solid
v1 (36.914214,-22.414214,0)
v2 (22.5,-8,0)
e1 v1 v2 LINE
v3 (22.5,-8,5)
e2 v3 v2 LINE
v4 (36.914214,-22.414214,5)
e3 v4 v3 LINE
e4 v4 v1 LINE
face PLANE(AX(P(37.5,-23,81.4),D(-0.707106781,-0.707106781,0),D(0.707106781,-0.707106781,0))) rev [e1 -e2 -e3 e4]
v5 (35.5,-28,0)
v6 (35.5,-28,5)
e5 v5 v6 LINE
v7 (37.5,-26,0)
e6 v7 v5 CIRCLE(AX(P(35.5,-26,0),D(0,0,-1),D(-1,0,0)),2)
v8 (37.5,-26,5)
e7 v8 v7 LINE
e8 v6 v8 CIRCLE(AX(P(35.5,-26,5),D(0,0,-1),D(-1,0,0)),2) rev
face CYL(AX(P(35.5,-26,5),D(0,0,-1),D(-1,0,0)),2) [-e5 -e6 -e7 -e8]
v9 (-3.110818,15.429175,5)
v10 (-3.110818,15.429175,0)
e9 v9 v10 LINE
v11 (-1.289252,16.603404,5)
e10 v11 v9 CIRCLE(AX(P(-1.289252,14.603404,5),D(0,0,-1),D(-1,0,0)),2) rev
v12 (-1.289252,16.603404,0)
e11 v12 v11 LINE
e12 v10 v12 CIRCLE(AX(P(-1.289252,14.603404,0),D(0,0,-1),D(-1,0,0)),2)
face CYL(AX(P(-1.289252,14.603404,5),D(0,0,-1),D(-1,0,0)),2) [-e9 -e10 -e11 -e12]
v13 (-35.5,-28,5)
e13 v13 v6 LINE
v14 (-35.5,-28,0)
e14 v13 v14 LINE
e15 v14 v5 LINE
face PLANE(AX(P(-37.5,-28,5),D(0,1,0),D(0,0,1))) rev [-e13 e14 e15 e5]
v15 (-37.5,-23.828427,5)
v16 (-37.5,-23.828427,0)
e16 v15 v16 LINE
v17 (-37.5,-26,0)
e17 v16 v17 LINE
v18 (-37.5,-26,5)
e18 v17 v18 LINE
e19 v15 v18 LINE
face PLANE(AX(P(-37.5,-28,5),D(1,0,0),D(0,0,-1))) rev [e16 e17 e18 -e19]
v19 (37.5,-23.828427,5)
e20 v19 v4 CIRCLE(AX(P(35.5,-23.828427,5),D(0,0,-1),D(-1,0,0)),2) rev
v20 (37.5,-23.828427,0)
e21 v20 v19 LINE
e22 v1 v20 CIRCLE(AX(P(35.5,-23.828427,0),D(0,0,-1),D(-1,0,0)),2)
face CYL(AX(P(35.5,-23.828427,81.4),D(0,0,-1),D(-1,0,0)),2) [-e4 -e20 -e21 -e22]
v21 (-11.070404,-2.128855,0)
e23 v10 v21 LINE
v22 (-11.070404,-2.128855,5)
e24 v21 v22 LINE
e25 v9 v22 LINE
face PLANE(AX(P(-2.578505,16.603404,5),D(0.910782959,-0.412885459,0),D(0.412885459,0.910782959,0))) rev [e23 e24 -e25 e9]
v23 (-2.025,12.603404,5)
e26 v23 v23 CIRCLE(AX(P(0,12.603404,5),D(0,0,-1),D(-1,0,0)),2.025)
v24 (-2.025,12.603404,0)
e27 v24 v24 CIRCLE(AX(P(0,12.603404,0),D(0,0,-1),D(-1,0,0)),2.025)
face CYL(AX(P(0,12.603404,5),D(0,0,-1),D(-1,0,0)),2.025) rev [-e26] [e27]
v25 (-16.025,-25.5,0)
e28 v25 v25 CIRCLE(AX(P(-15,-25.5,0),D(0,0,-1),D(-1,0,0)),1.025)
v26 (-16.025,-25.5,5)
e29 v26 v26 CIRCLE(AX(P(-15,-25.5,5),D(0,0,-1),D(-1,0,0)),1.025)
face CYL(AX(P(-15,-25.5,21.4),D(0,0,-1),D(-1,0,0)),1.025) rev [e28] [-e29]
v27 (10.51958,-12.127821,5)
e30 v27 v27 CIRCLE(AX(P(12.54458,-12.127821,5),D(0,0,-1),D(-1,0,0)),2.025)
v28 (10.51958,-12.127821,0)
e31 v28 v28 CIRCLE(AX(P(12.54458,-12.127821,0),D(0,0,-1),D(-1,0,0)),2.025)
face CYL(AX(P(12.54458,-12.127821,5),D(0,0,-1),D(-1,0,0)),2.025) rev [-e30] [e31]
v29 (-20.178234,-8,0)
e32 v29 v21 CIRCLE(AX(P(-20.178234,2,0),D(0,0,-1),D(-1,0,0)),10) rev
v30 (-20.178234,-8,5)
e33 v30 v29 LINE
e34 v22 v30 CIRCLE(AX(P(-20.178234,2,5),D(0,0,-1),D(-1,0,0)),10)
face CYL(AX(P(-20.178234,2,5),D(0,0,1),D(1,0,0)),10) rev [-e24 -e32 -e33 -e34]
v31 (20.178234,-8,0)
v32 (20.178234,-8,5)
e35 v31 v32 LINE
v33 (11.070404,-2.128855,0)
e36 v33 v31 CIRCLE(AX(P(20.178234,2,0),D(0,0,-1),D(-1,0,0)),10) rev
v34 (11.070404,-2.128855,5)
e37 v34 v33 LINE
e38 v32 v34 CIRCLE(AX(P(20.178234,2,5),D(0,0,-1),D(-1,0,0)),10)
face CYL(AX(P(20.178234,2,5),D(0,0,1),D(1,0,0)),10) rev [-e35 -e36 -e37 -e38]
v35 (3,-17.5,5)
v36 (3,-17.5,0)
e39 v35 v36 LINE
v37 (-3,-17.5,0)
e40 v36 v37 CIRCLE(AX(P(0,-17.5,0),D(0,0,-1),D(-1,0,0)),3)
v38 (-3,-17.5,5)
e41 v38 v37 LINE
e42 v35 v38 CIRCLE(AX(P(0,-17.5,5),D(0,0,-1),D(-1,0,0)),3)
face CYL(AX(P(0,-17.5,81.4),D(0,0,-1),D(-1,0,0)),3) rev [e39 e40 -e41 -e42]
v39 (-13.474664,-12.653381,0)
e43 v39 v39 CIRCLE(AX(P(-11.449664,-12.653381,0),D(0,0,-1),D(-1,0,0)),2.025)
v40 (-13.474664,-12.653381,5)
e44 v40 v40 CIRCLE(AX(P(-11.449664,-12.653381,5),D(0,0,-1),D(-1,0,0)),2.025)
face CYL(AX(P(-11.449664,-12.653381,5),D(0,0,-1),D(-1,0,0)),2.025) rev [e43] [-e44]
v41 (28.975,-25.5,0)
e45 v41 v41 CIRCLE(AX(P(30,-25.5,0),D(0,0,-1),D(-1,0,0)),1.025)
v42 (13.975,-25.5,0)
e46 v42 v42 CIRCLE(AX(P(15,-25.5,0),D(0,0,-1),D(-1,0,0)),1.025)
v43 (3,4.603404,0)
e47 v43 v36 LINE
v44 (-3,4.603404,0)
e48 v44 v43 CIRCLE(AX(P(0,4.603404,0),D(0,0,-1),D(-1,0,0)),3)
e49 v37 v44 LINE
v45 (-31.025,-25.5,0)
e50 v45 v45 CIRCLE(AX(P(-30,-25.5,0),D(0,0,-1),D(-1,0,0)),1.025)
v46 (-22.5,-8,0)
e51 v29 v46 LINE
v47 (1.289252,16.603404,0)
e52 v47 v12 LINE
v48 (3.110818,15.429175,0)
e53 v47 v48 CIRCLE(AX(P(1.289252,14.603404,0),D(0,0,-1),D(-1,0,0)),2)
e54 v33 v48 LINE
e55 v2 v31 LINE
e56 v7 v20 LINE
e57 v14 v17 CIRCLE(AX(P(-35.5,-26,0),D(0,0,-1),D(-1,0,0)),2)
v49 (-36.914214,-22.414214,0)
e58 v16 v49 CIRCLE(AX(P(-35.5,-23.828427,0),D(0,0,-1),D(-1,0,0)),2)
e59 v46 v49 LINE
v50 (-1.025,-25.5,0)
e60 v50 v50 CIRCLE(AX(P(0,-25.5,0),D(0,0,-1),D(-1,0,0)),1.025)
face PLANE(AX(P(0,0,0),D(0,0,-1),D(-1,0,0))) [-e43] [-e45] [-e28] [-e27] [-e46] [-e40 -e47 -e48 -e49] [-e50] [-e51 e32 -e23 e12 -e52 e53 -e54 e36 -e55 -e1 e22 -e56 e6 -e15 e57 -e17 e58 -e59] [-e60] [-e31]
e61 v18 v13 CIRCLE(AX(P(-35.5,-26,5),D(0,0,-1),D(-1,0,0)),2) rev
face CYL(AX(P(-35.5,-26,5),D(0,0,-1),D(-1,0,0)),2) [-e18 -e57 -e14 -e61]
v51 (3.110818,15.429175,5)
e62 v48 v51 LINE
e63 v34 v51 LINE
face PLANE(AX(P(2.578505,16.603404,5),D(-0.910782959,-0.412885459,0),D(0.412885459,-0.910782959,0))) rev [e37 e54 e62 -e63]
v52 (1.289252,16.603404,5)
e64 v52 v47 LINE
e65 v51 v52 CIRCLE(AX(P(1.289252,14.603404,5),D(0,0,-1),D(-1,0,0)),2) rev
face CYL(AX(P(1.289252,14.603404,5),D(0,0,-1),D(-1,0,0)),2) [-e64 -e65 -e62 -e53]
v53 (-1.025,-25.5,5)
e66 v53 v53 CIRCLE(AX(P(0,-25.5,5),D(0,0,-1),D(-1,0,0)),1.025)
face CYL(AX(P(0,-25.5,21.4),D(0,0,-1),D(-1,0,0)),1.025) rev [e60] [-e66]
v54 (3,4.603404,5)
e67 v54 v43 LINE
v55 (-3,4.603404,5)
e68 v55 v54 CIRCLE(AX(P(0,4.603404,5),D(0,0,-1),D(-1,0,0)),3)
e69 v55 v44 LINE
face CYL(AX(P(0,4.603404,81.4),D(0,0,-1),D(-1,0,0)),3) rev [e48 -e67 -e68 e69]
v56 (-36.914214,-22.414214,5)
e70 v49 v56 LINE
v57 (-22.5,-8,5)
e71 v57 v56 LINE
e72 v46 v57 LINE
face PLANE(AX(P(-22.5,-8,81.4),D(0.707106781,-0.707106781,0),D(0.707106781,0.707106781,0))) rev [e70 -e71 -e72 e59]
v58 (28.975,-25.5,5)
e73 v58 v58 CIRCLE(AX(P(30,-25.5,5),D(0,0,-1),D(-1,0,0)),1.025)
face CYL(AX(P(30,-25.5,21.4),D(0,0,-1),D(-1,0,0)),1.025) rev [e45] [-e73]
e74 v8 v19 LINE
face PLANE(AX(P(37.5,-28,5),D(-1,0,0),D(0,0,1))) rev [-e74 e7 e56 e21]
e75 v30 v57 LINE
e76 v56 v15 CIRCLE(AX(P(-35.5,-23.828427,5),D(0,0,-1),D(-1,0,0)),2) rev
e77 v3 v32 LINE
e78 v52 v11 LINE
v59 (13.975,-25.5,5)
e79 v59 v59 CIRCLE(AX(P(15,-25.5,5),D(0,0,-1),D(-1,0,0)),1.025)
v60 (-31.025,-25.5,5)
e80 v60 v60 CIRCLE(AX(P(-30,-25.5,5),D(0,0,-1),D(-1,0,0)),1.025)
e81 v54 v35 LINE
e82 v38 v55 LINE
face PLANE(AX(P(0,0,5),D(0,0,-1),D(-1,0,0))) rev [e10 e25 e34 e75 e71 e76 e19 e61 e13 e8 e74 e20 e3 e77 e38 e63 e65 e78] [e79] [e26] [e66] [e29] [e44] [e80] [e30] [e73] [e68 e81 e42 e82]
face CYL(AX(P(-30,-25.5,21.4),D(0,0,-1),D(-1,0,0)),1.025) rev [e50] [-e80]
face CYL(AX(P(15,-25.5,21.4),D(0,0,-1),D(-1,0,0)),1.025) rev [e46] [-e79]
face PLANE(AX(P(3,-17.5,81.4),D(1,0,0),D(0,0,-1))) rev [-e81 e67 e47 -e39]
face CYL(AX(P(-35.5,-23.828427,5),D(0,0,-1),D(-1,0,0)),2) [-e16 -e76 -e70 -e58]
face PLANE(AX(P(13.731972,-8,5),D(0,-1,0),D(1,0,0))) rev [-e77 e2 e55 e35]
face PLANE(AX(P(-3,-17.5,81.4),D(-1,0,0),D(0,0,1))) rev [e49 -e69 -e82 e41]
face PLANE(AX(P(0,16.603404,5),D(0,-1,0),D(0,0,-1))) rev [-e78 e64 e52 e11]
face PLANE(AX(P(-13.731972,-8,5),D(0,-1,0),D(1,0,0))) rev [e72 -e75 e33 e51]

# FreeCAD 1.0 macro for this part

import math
import FreeCAD as App
import Part
import Sketcher
from FreeCAD import Vector


def edges_at(feature, points):
    """Names of the edges that pass closest to the given points."""
    edges = feature.Shape.Edges
    near = lambda p: min(range(len(edges)), key=lambda i: edges[i].distToShape(Part.Vertex(*p))[0])
    return sorted({f"Edge{near(p) + 1}" for p in points})

doc = App.newDocument("Part")
body = doc.addObject("PartDesign::Body", "Body")

# Sketch on XY plane
sketch1 = body.newObject("Sketcher::SketchObject", "Sketch")
sketch1.AttachmentSupport = (doc.getObject("XY_Plane"), [""])
sketch1.MapMode = "FlatFace"
sketch1.addGeometry(Part.LineSegment(Vector(-38, 28, 0), Vector(-38, -28, 0)), False)
sketch1.addGeometry(Part.LineSegment(Vector(-38, -28, 0), Vector(38, -28, 0)), False)
sketch1.addGeometry(Part.LineSegment(Vector(38, -28, 0), Vector(38, 28, 0)), False)
sketch1.addGeometry(Part.LineSegment(Vector(38, 28, 0), Vector(-38, 28, 0)), False)
sketch1.addConstraint(Sketcher.Constraint("Coincident", 0, 2, 1, 1))
sketch1.addConstraint(Sketcher.Constraint("Coincident", 1, 2, 2, 1))
sketch1.addConstraint(Sketcher.Constraint("Coincident", 2, 2, 3, 1))
sketch1.addConstraint(Sketcher.Constraint("Coincident", 3, 2, 0, 1))
sketch1.addConstraint(Sketcher.Constraint("Vertical", 0))
sketch1.addConstraint(Sketcher.Constraint("Horizontal", 1))
sketch1.addConstraint(Sketcher.Constraint("Vertical", 2))
sketch1.addConstraint(Sketcher.Constraint("Horizontal", 3))
sketch1.addConstraint(Sketcher.Constraint("Symmetric", 0, 2, 2, 2, -1, 1))
sketch1.addConstraint(Sketcher.Constraint("DistanceX", 1, 1, 1, 2, 75.0))
sketch1.addConstraint(Sketcher.Constraint("DistanceY", 0, 2, 0, 1, 56.0))
pad1 = body.newObject("PartDesign::Pad", "Pad")
pad1.Profile = sketch1
pad1.Length = 5

# Sketch on XY plane
sketch2 = body.newObject("Sketcher::SketchObject", "Sketch001")
sketch2.AttachmentSupport = (doc.getObject("XY_Plane"), [""])
sketch2.MapMode = "FlatFace"
sketch2.addGeometry(Part.Circle(Vector(-11.4, -12.7, 0), Vector(0, 0, 1), 2), False)
sketch2.addGeometry(Part.Circle(Vector(0, 12.6, 0), Vector(0, 0, 1), 2), False)
sketch2.addGeometry(Part.Circle(Vector(12.5, -12.1, 0), Vector(0, 0, 1), 2), False)
sketch2.addConstraint(Sketcher.Constraint("Equal", 0, 1))
sketch2.addConstraint(Sketcher.Constraint("Equal", 1, 2))
sketch2.addConstraint(Sketcher.Constraint("PointOnObject", 1, 3, -2))
sketch2.addConstraint(Sketcher.Constraint("Diameter", 0, 4.05))
sketch2.addConstraint(Sketcher.Constraint("DistanceY", 0, 3, -1, 1, 12.653381))
sketch2.addConstraint(Sketcher.Constraint("DistanceX", -1, 1, 2, 3, 12.54458))
sketch2.addConstraint(Sketcher.Constraint("DistanceY", 2, 3, -1, 1, 12.127821))
sketch2.addConstraint(Sketcher.Constraint("DistanceX", 0, 3, -1, 1, 11.449664))
sketch2.addConstraint(Sketcher.Constraint("DistanceY", -1, 1, 1, 3, 12.603404))
pocket1 = body.newObject("PartDesign::Pocket", "Pocket")
pocket1.Profile = sketch2
pocket1.Length = 5
pocket1.Reversed = True

# Sketch on XY plane
sketch3 = body.newObject("Sketcher::SketchObject", "Sketch002")
sketch3.AttachmentSupport = (doc.getObject("XY_Plane"), [""])
sketch3.MapMode = "FlatFace"
sketch3.addGeometry(Part.LineSegment(Vector(-3, 17, 0), Vector(-14, -8, 0)), False)
sketch3.addGeometry(Part.LineSegment(Vector(-14, -8, 0), Vector(-38, -8, 0)), False)
sketch3.addGeometry(Part.LineSegment(Vector(-38, -8, 0), Vector(-38, 28, 0)), False)
sketch3.addGeometry(Part.LineSegment(Vector(-38, 28, 0), Vector(38, 28, 0)), False)
sketch3.addGeometry(Part.LineSegment(Vector(38, 28, 0), Vector(38, -8, 0)), False)
sketch3.addGeometry(Part.LineSegment(Vector(38, -8, 0), Vector(14, -8, 0)), False)
sketch3.addGeometry(Part.LineSegment(Vector(14, -8, 0), Vector(3, 17, 0)), False)
sketch3.addGeometry(Part.LineSegment(Vector(3, 17, 0), Vector(-3, 17, 0)), False)
sketch3.addConstraint(Sketcher.Constraint("Coincident", 0, 2, 1, 1))
sketch3.addConstraint(Sketcher.Constraint("Coincident", 1, 2, 2, 1))
sketch3.addConstraint(Sketcher.Constraint("Coincident", 2, 2, 3, 1))
sketch3.addConstraint(Sketcher.Constraint("Coincident", 3, 2, 4, 1))
sketch3.addConstraint(Sketcher.Constraint("Coincident", 4, 2, 5, 1))
sketch3.addConstraint(Sketcher.Constraint("Coincident", 5, 2, 6, 1))
sketch3.addConstraint(Sketcher.Constraint("Coincident", 6, 2, 7, 1))
sketch3.addConstraint(Sketcher.Constraint("Coincident", 7, 2, 0, 1))
sketch3.addConstraint(Sketcher.Constraint("Horizontal", 1))
sketch3.addConstraint(Sketcher.Constraint("Vertical", 2))
sketch3.addConstraint(Sketcher.Constraint("Horizontal", 3))
sketch3.addConstraint(Sketcher.Constraint("Vertical", 4))
sketch3.addConstraint(Sketcher.Constraint("Horizontal", 5))
sketch3.addConstraint(Sketcher.Constraint("Horizontal", 7))
sketch3.addConstraint(Sketcher.Constraint("Symmetric", 1, 2, 4, 2, -2))
sketch3.addConstraint(Sketcher.Constraint("Equal", 1, 5))
sketch3.addConstraint(Sketcher.Constraint("Equal", 0, 6))
sketch3.addConstraint(Sketcher.Constraint("DistanceX", 3, 1, 3, 2, 75.0))
sketch3.addConstraint(Sketcher.Constraint("DistanceY", 2, 1, 2, 2, 36.0))
sketch3.addConstraint(Sketcher.Constraint("DistanceY", 0, 2, -1, 1, 8.0))
sketch3.addConstraint(Sketcher.Constraint("DistanceX", 1, 2, 1, 1, 23.768028))
sketch3.addConstraint(Sketcher.Constraint("DistanceX", 7, 2, 7, 1, 5.157009))
sketch3.addConstraint(Sketcher.Constraint("Distance", 0, 27.013465))
pocket2 = body.newObject("PartDesign::Pocket", "Pocket001")
pocket2.Profile = sketch3
pocket2.Length = 5
pocket2.Reversed = True
doc.recompute()

fillet = body.newObject("PartDesign::Fillet", "Fillet")
fillet.Base = (pocket2, edges_at(pocket2, [(13.732, -8, 2.5), (-13.732, -8, 2.5)]))
fillet.Radius = 10

# Sketch on XY plane
sketch4 = body.newObject("Sketcher::SketchObject", "Sketch003")
sketch4.AttachmentSupport = (doc.getObject("XY_Plane"), [""])
sketch4.MapMode = "FlatFace"
sketch4.addGeometry(Part.Circle(Vector(-30, -25.5, 0), Vector(0, 0, 1), 1), False)
sketch4.addGeometry(Part.Circle(Vector(-15, -25.5, 0), Vector(0, 0, 1), 1), False)
sketch4.addGeometry(Part.Circle(Vector(0, -25.5, 0), Vector(0, 0, 1), 1), False)
sketch4.addGeometry(Part.Circle(Vector(15, -25.5, 0), Vector(0, 0, 1), 1), False)
sketch4.addGeometry(Part.Circle(Vector(30, -25.5, 0), Vector(0, 0, 1), 1), False)
sketch4.addConstraint(Sketcher.Constraint("Equal", 0, 1))
sketch4.addConstraint(Sketcher.Constraint("Equal", 1, 2))
sketch4.addConstraint(Sketcher.Constraint("Equal", 2, 3))
sketch4.addConstraint(Sketcher.Constraint("Equal", 3, 4))
sketch4.addConstraint(Sketcher.Constraint("Symmetric", 1, 3, 3, 3, -2))
sketch4.addConstraint(Sketcher.Constraint("Symmetric", 0, 3, 4, 3, -2))
sketch4.addConstraint(Sketcher.Constraint("PointOnObject", 2, 3, -2))
sketch4.addConstraint(Sketcher.Constraint("Horizontal", 0, 3, 1, 3))
sketch4.addConstraint(Sketcher.Constraint("Horizontal", 1, 3, 2, 3))
sketch4.addConstraint(Sketcher.Constraint("Diameter", 0, 2.05))
sketch4.addConstraint(Sketcher.Constraint("DistanceX", 0, 3, -1, 1, 30.0))
sketch4.addConstraint(Sketcher.Constraint("DistanceX", 1, 3, -1, 1, 15.0))
sketch4.addConstraint(Sketcher.Constraint("DistanceY", 0, 3, -1, 1, 25.5))
pocket3 = body.newObject("PartDesign::Pocket", "Pocket002")
pocket3.Profile = sketch4
pocket3.Length = 21.4
pocket3.Reversed = True

# Sketch on XY plane
sketch5 = body.newObject("Sketcher::SketchObject", "Sketch004")
sketch5.AttachmentSupport = (doc.getObject("XY_Plane"), [""])
sketch5.MapMode = "FlatFace"
sketch5.addGeometry(Part.LineSegment(Vector(38, -23, 0), Vector(22, -8, 0)), False)
sketch5.addGeometry(Part.LineSegment(Vector(22, -8, 0), Vector(38, -8, 0)), False)
sketch5.addGeometry(Part.LineSegment(Vector(38, -8, 0), Vector(38, -23, 0)), False)
sketch5.addGeometry(Part.LineSegment(Vector(-22, -8, 0), Vector(-38, -23, 0)), False)
sketch5.addGeometry(Part.LineSegment(Vector(-38, -23, 0), Vector(-38, -8, 0)), False)
sketch5.addGeometry(Part.LineSegment(Vector(-38, -8, 0), Vector(-22, -8, 0)), False)
sketch5.addConstraint(Sketcher.Constraint("Coincident", 0, 2, 1, 1))
sketch5.addConstraint(Sketcher.Constraint("Coincident", 1, 2, 2, 1))
sketch5.addConstraint(Sketcher.Constraint("Coincident", 2, 2, 0, 1))
sketch5.addConstraint(Sketcher.Constraint("Coincident", 3, 2, 4, 1))
sketch5.addConstraint(Sketcher.Constraint("Coincident", 4, 2, 5, 1))
sketch5.addConstraint(Sketcher.Constraint("Coincident", 5, 2, 3, 1))
sketch5.addConstraint(Sketcher.Constraint("Horizontal", 1))
sketch5.addConstraint(Sketcher.Constraint("Vertical", 2))
sketch5.addConstraint(Sketcher.Constraint("Vertical", 4))
sketch5.addConstraint(Sketcher.Constraint("Horizontal", 5))
sketch5.addConstraint(Sketcher.Constraint("Symmetric", 2, 2, 3, 2, -2))
sketch5.addConstraint(Sketcher.Constraint("Symmetric", 0, 2, 5, 2, -2))
sketch5.addConstraint(Sketcher.Constraint("Perpendicular", 0, 3))
sketch5.addConstraint(Sketcher.Constraint("DistanceX", 1, 1, 1, 2, 15.0))
sketch5.addConstraint(Sketcher.Constraint("DistanceY", 0, 2, -1, 1, 8.0))
sketch5.addConstraint(Sketcher.Constraint("DistanceX", 3, 2, 0, 2, 60.0))
pocket4 = body.newObject("PartDesign::Pocket", "Pocket003")
pocket4.Profile = sketch5
pocket4.Length = 81.4
pocket4.Reversed = True

# Sketch on XY plane
sketch6 = body.newObject("Sketcher::SketchObject", "Sketch005")
sketch6.AttachmentSupport = (doc.getObject("XY_Plane"), [""])
sketch6.MapMode = "FlatFace"
sketch6.addGeometry(Part.LineSegment(Vector(3, 4.6, 0), Vector(3, -17.5, 0)), False)
sketch6.addGeometry(Part.ArcOfCircle(Part.Circle(Vector(0, -17.5, 0), Vector(0, 0, 1), 3), math.radians(180), math.radians(360)), False)
sketch6.addGeometry(Part.LineSegment(Vector(-3, -17.5, 0), Vector(-3, 4.6, 0)), False)
sketch6.addGeometry(Part.ArcOfCircle(Part.Circle(Vector(0, 4.6, 0), Vector(0, 0, 1), 3), math.radians(0), math.radians(180)), False)
sketch6.addConstraint(Sketcher.Constraint("Tangent", 0, 2, 1, 2))
sketch6.addConstraint(Sketcher.Constraint("Tangent", 1, 1, 2, 1))
sketch6.addConstraint(Sketcher.Constraint("Tangent", 2, 2, 3, 2))
sketch6.addConstraint(Sketcher.Constraint("Tangent", 3, 1, 0, 1))
sketch6.addConstraint(Sketcher.Constraint("Vertical", 0))
sketch6.addConstraint(Sketcher.Constraint("Vertical", 2))
sketch6.addConstraint(Sketcher.Constraint("PointOnObject", 1, 3, -2))
sketch6.addConstraint(Sketcher.Constraint("Radius", 1, 3.0))
sketch6.addConstraint(Sketcher.Constraint("DistanceY", 1, 3, -1, 1, 17.5))
sketch6.addConstraint(Sketcher.Constraint("DistanceY", 0, 2, 0, 1, 22.103404))
pocket5 = body.newObject("PartDesign::Pocket", "Pocket004")
pocket5.Profile = sketch6
pocket5.Length = 81.4
pocket5.Reversed = True
doc.recompute()

fillet2 = body.newObject("PartDesign::Fillet", "Fillet001")
fillet2.Base = (pocket5, edges_at(pocket5, [
    (37.5, -23, 2.5),
    (-37.5, -23, 2.5),
    (37.5, -28, 2.5),
    (-37.5, -28, 2.5),
]))
fillet2.Radius = 2
doc.recompute()

fillet3 = body.newObject("PartDesign::Fillet", "Fillet002")
fillet3.Base = (fillet2, edges_at(fillet2, [(-2.579, 16.603, 2.5), (2.579, 16.603, 2.5)]))
fillet3.Radius = 2

doc.recompute()
